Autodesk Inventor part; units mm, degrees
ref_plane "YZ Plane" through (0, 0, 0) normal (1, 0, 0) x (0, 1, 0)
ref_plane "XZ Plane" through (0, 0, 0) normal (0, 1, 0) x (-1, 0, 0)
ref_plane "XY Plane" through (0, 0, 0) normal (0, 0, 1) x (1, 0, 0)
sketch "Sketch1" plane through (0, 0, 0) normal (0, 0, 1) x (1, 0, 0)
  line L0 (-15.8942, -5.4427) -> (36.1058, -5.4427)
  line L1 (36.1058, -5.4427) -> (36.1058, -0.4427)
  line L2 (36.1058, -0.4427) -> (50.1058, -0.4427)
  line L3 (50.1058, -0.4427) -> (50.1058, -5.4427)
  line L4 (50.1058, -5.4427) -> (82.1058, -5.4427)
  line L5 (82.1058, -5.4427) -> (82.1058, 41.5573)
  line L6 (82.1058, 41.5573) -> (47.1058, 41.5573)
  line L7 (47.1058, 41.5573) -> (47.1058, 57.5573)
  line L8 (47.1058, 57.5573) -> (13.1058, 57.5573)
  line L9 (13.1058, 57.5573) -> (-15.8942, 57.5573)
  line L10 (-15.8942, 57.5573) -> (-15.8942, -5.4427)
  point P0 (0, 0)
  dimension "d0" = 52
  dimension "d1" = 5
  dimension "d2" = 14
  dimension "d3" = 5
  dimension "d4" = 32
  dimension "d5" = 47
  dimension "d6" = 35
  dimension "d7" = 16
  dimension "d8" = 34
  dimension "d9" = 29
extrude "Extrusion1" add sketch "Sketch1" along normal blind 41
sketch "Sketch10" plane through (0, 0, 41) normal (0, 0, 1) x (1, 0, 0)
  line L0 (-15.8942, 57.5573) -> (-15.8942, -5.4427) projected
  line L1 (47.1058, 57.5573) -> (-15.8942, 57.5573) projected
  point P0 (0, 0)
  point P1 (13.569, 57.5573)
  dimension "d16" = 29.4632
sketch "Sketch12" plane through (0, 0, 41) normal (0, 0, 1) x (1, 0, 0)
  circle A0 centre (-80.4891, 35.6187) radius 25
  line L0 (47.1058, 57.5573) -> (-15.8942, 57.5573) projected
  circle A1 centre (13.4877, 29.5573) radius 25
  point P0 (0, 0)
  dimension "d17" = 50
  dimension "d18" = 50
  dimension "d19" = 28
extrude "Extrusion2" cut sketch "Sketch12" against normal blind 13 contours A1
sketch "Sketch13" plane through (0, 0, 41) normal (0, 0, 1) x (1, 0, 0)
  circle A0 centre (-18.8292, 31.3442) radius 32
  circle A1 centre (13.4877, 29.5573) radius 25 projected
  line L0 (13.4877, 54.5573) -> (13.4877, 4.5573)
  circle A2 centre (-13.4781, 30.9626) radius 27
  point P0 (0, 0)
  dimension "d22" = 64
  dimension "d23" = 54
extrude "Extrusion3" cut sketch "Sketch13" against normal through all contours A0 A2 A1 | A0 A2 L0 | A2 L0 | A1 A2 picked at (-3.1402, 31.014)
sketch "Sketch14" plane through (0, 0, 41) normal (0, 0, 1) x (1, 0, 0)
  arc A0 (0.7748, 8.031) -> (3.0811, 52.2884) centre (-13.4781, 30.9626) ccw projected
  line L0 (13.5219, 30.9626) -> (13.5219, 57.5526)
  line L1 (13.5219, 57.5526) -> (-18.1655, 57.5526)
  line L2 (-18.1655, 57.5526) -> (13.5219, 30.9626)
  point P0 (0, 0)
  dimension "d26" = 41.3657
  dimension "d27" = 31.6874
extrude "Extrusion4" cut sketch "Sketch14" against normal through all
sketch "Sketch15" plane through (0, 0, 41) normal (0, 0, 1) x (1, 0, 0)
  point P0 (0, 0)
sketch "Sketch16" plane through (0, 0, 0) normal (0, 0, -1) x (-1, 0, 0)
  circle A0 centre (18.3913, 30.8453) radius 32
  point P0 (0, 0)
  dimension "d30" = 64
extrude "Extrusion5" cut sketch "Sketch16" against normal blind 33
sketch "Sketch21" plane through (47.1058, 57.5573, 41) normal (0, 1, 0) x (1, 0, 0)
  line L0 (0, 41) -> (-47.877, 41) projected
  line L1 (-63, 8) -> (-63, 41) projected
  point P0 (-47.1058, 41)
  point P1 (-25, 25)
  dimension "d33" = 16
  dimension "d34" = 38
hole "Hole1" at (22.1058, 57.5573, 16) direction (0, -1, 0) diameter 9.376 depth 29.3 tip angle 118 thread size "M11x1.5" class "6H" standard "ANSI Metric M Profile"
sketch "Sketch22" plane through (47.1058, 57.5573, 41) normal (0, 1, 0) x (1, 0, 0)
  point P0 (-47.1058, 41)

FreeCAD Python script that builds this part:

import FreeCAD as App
import Part
import Sketcher

V = App.Vector
Q = App.Units.Quantity


def add_polygon(sketch, points):
    """Adds a closed chain of lines whose ends are joined by coincident constraints."""
    first, n = sketch.GeometryCount, len(points)
    for a, b in zip(points, points[1:] + points[:1]):
        sketch.addGeometry(Part.LineSegment(App.Vector(*a, 0), App.Vector(*b, 0)), False)
    for i in range(n):
        sketch.addConstraint(Sketcher.Constraint("Coincident", first + i, 2, first + (i + 1) % n, 1))

doc = App.newDocument("Part")
body = doc.addObject("PartDesign::Body", "Body")

# Sketch on XY plane
sketch1 = doc.addObject("Sketcher::SketchObject", "Sketch")
body.addObject(sketch1)
sketch1.AttachmentSupport = (doc.XY_Plane, [""])
sketch1.MapMode = "FlatFace"
add_polygon(sketch1, [(-16, 58), (-16, -5), (36, -5), (36, 0), (50, 0), (50, -5), (82, -5), (82, 42), (47, 42), (47, 58)])  # lines 0-9
sketch1.addConstraint(Sketcher.Constraint("Vertical", 0))
sketch1.addConstraint(Sketcher.Constraint("Horizontal", 1))
sketch1.addConstraint(Sketcher.Constraint("Vertical", 2))
sketch1.addConstraint(Sketcher.Constraint("Horizontal", 3))
sketch1.addConstraint(Sketcher.Constraint("Vertical", 4))
sketch1.addConstraint(Sketcher.Constraint("Horizontal", 5))
sketch1.addConstraint(Sketcher.Constraint("Vertical", 6))
sketch1.addConstraint(Sketcher.Constraint("Horizontal", 7))
sketch1.addConstraint(Sketcher.Constraint("Vertical", 8))
sketch1.addConstraint(Sketcher.Constraint("Horizontal", 9))
sketch1.addConstraint(Sketcher.Constraint("Horizontal", 1, 2, 4, 2))
sketch1.addConstraint(Sketcher.Constraint("Equal", 9, 0))
sketch1.addConstraint(Sketcher.Constraint("DistanceX", 1, 1, 1, 2, 52.0))
sketch1.addConstraint(Sketcher.Constraint("DistanceX", 3, 1, 3, 2, 14.0))
sketch1.addConstraint(Sketcher.Constraint("DistanceX", 5, 1, 5, 2, 32.0))
sketch1.addConstraint(Sketcher.Constraint("DistanceX", 7, 2, 7, 1, 35.0))
sketch1.addConstraint(Sketcher.Constraint("DistanceY", 2, 1, 2, 2, 5.0))
sketch1.addConstraint(Sketcher.Constraint("DistanceY", 6, 1, 6, 2, 47.0))
sketch1.addConstraint(Sketcher.Constraint("DistanceX", 0, 2, -1, 1, 15.8942))
sketch1.addConstraint(Sketcher.Constraint("DistanceY", 0, 2, -1, 1, 5.4427))
pad1 = doc.addObject("PartDesign::Pad", "Pad")
body.addObject(pad1)
pad1.Profile = sketch1
pad1.Length = 41

# Sketch on XY plane
sketch2 = doc.addObject("Sketcher::SketchObject", "Sketch001")
body.addObject(sketch2)
sketch2.AttachmentSupport = (doc.XY_Plane, [""])
sketch2.MapMode = "FlatFace"
sketch2.AttachmentOffset = App.Placement(V(0, 0, 41), App.Rotation())
sketch2.addGeometry(Part.Circle(V(13, 30, 0), V(0, 0, 1), 25), False)
sketch2.addConstraint(Sketcher.Constraint("Diameter", 0, 50.0))
sketch2.addConstraint(Sketcher.Constraint("DistanceX", -1, 1, 0, 3, 13.4877))
sketch2.addConstraint(Sketcher.Constraint("DistanceY", -1, 1, 0, 3, 29.5573))
pocket1 = doc.addObject("PartDesign::Pocket", "Pocket")
body.addObject(pocket1)
pocket1.Profile = sketch2
pocket1.Length = 13

# Sketch on XY plane
sketch3 = doc.addObject("Sketcher::SketchObject", "Sketch002")
body.addObject(sketch3)
sketch3.AttachmentSupport = (doc.XY_Plane, [""])
sketch3.MapMode = "FlatFace"
sketch3.AttachmentOffset = App.Placement(V(0, 0, 41), App.Rotation())
sketch3.addGeometry(Part.Circle(V(-13, 31, 0), V(0, 0, 1), 27), False)
sketch3.addConstraint(Sketcher.Constraint("Diameter", 0, 54.0))
sketch3.addConstraint(Sketcher.Constraint("DistanceX", 0, 3, -1, 1, 13.478))
sketch3.addConstraint(Sketcher.Constraint("DistanceY", -1, 1, 0, 3, 30.9626))
pocket2 = doc.addObject("PartDesign::Pocket", "Pocket001")
body.addObject(pocket2)
pocket2.Profile = sketch3
pocket2.Type = "ThroughAll"

# Sketch on XY plane
sketch4 = doc.addObject("Sketcher::SketchObject", "Sketch003")
body.addObject(sketch4)
sketch4.AttachmentSupport = (doc.XY_Plane, [""])
sketch4.MapMode = "FlatFace"
sketch4.AttachmentOffset = App.Placement(V(0, 0, 41), App.Rotation())
add_polygon(sketch4, [(-18, 58), (14, 31), (14, 58)])  # lines 0-2
sketch4.addConstraint(Sketcher.Constraint("Vertical", 1))
sketch4.addConstraint(Sketcher.Constraint("Horizontal", 2))
sketch4.addConstraint(Sketcher.Constraint("Angle", 0, Q("-40.0012 deg")))
sketch4.addConstraint(Sketcher.Constraint("DistanceX", 2, 2, 2, 1, 31.6874))
sketch4.addConstraint(Sketcher.Constraint("DistanceX", -1, 1, 0, 2, 13.522))
sketch4.addConstraint(Sketcher.Constraint("DistanceY", -1, 1, 0, 2, 30.9626))
pocket3 = doc.addObject("PartDesign::Pocket", "Pocket002")
body.addObject(pocket3)
pocket3.Profile = sketch4
pocket3.Type = "ThroughAll"

# Sketch on XY plane
sketch5 = doc.addObject("Sketcher::SketchObject", "Sketch004")
body.addObject(sketch5)
sketch5.AttachmentSupport = (doc.XY_Plane, [""])
sketch5.MapMode = "FlatFace"
sketch5.addGeometry(Part.Circle(V(-18, 31, 0), V(0, 0, 1), 32), False)
sketch5.addConstraint(Sketcher.Constraint("Diameter", 0, 64.0))
sketch5.addConstraint(Sketcher.Constraint("DistanceX", 0, 3, -1, 1, 18.3913))
sketch5.addConstraint(Sketcher.Constraint("DistanceY", -1, 1, 0, 3, 30.8453))
pocket4 = doc.addObject("PartDesign::Pocket", "Pocket003")
body.addObject(pocket4)
pocket4.Profile = sketch5
pocket4.Length = 33
pocket4.Reversed = True

# Sketch on XZ plane
sketch6 = doc.addObject("Sketcher::SketchObject", "Sketch005")
body.addObject(sketch6)
sketch6.AttachmentSupport = (doc.XZ_Plane, [""])
sketch6.MapMode = "FlatFace"
sketch6.AttachmentOffset = App.Placement(V(0, 0, -57.5573), App.Rotation())
sketch6.addGeometry(Part.Circle(V(22.1, 16, 0), V(0, 0, 1), 4.7), False)
sketch6.addConstraint(Sketcher.Constraint("Diameter", 0, 9.376))
sketch6.addConstraint(Sketcher.Constraint("DistanceY", -1, 1, 0, 3, 16.0))
sketch6.addConstraint(Sketcher.Constraint("DistanceX", -1, 1, 0, 3, 22.1058))
doc.recompute()
hole = doc.addObject("PartDesign::Hole", "Hole")
body.addObject(hole)
hole.Profile = sketch6
hole.ThreadType = "None"
hole.Diameter = 9.376
hole.DepthType = "Dimension"
hole.Depth = 29.3
hole.DrillPoint = "Angled"
hole.DrillPointAngle = 118
hole.Reversed = True

doc.recompute()
